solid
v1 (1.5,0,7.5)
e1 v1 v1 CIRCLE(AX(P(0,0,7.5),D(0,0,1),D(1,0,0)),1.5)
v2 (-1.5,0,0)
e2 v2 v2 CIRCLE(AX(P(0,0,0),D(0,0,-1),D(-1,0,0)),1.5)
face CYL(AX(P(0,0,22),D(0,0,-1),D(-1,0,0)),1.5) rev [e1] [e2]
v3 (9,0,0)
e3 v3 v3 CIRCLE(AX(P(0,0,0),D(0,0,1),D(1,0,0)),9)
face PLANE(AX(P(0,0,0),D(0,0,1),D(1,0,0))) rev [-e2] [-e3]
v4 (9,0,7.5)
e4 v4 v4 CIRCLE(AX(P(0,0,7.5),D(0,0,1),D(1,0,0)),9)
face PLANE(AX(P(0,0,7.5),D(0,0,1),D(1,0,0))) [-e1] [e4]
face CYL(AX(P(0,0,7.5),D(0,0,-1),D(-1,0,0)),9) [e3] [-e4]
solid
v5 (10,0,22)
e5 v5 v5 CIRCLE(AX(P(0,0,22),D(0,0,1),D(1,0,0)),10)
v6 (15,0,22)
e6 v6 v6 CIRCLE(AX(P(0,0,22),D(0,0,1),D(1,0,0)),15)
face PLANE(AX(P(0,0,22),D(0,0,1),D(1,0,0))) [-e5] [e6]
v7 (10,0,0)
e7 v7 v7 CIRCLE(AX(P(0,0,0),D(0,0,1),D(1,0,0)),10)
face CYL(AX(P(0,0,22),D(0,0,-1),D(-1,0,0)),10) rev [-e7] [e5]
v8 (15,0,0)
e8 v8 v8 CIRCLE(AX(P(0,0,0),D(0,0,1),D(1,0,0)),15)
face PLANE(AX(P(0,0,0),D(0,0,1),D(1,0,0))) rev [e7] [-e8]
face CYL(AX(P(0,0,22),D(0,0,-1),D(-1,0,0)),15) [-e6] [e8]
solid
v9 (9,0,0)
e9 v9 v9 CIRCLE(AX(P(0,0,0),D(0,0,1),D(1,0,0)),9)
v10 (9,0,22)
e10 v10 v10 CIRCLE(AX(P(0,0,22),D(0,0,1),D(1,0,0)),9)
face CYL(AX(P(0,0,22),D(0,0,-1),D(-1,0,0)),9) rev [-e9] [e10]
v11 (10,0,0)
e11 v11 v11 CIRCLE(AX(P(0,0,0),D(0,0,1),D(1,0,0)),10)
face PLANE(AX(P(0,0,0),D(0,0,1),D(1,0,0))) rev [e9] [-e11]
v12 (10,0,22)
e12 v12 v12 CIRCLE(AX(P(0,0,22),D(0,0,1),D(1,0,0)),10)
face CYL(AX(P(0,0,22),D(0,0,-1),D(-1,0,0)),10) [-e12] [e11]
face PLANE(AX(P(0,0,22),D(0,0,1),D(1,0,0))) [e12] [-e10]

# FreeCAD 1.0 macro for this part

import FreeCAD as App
import Part
import Sketcher

V = App.Vector

doc = App.newDocument("Part")
body = doc.addObject("PartDesign::Body", "Body")

sketch1 = body.newObject("Sketcher::SketchObject", "Sketch")
sketch1.AttachmentSupport = (doc.getObject("XY_Plane"), [""])
sketch1.MapMode = "FlatFace"
sketch1.addGeometry(Part.Circle(V(0, 0, 0), V(0, 0, 1), 15), False)
sketch1.addGeometry(Part.Circle(V(0, 0, 0), V(0, 0, 1), 10), False)
sketch1.addConstraint(Sketcher.Constraint("Coincident", 0, 3, -1, 1))
sketch1.addConstraint(Sketcher.Constraint("Coincident", 1, 3, -1, 1))
sketch1.addConstraint(Sketcher.Constraint("Diameter", 0, 30.0))
sketch1.addConstraint(Sketcher.Constraint("Diameter", 1, 20.0))
pad1 = body.newObject("PartDesign::Pad", "Pad")
pad1.Profile = sketch1
pad1.Length = 22
body2 = doc.addObject("PartDesign::Body", "Body001")

sketch2 = body2.newObject("Sketcher::SketchObject", "Sketch001")
sketch2.AttachmentSupport = (doc.getObject("XY_Plane001"), [""])
sketch2.MapMode = "FlatFace"
sketch2.addGeometry(Part.Circle(V(0, 0, 0), V(0, 0, 1), 10), False)
sketch2.addGeometry(Part.Circle(V(0, 0, 0), V(0, 0, 1), 9), False)
sketch2.addConstraint(Sketcher.Constraint("Coincident", 0, 3, -1, 1))
sketch2.addConstraint(Sketcher.Constraint("Coincident", 1, 3, -1, 1))
sketch2.addConstraint(Sketcher.Constraint("Diameter", 0, 20.0))
sketch2.addConstraint(Sketcher.Constraint("Diameter", 1, 18.0))
pad2 = body2.newObject("PartDesign::Pad", "Pad001")
pad2.Profile = sketch2
pad2.Length = 22
body3 = doc.addObject("PartDesign::Body", "Body002")

sketch3 = body3.newObject("Sketcher::SketchObject", "Sketch002")
sketch3.AttachmentSupport = (doc.getObject("XY_Plane002"), [""])
sketch3.MapMode = "FlatFace"
sketch3.addGeometry(Part.Circle(V(0, 0, 0), V(0, 0, 1), 9), False)
sketch3.addConstraint(Sketcher.Constraint("Coincident", 0, 3, -1, 1))
sketch3.addConstraint(Sketcher.Constraint("Diameter", 0, 18.0))
pad3 = body3.newObject("PartDesign::Pad", "Pad002")
pad3.Profile = sketch3
pad3.Length = 7.5

sketch4 = body3.newObject("Sketcher::SketchObject", "Sketch003")
sketch4.AttachmentSupport = (doc.getObject("XY_Plane002"), [""])
sketch4.MapMode = "FlatFace"
sketch4.addGeometry(Part.Circle(V(0, 0, 0), V(0, 0, 1), 1.5), False)
sketch4.addConstraint(Sketcher.Constraint("Coincident", 0, 3, -1, 1))
sketch4.addConstraint(Sketcher.Constraint("Diameter", 0, 3.0))
pocket1 = body3.newObject("PartDesign::Pocket", "Pocket")
pocket1.Profile = sketch4
pocket1.Type = "ThroughAll"
pocket1.Reversed = True

doc.recompute()
